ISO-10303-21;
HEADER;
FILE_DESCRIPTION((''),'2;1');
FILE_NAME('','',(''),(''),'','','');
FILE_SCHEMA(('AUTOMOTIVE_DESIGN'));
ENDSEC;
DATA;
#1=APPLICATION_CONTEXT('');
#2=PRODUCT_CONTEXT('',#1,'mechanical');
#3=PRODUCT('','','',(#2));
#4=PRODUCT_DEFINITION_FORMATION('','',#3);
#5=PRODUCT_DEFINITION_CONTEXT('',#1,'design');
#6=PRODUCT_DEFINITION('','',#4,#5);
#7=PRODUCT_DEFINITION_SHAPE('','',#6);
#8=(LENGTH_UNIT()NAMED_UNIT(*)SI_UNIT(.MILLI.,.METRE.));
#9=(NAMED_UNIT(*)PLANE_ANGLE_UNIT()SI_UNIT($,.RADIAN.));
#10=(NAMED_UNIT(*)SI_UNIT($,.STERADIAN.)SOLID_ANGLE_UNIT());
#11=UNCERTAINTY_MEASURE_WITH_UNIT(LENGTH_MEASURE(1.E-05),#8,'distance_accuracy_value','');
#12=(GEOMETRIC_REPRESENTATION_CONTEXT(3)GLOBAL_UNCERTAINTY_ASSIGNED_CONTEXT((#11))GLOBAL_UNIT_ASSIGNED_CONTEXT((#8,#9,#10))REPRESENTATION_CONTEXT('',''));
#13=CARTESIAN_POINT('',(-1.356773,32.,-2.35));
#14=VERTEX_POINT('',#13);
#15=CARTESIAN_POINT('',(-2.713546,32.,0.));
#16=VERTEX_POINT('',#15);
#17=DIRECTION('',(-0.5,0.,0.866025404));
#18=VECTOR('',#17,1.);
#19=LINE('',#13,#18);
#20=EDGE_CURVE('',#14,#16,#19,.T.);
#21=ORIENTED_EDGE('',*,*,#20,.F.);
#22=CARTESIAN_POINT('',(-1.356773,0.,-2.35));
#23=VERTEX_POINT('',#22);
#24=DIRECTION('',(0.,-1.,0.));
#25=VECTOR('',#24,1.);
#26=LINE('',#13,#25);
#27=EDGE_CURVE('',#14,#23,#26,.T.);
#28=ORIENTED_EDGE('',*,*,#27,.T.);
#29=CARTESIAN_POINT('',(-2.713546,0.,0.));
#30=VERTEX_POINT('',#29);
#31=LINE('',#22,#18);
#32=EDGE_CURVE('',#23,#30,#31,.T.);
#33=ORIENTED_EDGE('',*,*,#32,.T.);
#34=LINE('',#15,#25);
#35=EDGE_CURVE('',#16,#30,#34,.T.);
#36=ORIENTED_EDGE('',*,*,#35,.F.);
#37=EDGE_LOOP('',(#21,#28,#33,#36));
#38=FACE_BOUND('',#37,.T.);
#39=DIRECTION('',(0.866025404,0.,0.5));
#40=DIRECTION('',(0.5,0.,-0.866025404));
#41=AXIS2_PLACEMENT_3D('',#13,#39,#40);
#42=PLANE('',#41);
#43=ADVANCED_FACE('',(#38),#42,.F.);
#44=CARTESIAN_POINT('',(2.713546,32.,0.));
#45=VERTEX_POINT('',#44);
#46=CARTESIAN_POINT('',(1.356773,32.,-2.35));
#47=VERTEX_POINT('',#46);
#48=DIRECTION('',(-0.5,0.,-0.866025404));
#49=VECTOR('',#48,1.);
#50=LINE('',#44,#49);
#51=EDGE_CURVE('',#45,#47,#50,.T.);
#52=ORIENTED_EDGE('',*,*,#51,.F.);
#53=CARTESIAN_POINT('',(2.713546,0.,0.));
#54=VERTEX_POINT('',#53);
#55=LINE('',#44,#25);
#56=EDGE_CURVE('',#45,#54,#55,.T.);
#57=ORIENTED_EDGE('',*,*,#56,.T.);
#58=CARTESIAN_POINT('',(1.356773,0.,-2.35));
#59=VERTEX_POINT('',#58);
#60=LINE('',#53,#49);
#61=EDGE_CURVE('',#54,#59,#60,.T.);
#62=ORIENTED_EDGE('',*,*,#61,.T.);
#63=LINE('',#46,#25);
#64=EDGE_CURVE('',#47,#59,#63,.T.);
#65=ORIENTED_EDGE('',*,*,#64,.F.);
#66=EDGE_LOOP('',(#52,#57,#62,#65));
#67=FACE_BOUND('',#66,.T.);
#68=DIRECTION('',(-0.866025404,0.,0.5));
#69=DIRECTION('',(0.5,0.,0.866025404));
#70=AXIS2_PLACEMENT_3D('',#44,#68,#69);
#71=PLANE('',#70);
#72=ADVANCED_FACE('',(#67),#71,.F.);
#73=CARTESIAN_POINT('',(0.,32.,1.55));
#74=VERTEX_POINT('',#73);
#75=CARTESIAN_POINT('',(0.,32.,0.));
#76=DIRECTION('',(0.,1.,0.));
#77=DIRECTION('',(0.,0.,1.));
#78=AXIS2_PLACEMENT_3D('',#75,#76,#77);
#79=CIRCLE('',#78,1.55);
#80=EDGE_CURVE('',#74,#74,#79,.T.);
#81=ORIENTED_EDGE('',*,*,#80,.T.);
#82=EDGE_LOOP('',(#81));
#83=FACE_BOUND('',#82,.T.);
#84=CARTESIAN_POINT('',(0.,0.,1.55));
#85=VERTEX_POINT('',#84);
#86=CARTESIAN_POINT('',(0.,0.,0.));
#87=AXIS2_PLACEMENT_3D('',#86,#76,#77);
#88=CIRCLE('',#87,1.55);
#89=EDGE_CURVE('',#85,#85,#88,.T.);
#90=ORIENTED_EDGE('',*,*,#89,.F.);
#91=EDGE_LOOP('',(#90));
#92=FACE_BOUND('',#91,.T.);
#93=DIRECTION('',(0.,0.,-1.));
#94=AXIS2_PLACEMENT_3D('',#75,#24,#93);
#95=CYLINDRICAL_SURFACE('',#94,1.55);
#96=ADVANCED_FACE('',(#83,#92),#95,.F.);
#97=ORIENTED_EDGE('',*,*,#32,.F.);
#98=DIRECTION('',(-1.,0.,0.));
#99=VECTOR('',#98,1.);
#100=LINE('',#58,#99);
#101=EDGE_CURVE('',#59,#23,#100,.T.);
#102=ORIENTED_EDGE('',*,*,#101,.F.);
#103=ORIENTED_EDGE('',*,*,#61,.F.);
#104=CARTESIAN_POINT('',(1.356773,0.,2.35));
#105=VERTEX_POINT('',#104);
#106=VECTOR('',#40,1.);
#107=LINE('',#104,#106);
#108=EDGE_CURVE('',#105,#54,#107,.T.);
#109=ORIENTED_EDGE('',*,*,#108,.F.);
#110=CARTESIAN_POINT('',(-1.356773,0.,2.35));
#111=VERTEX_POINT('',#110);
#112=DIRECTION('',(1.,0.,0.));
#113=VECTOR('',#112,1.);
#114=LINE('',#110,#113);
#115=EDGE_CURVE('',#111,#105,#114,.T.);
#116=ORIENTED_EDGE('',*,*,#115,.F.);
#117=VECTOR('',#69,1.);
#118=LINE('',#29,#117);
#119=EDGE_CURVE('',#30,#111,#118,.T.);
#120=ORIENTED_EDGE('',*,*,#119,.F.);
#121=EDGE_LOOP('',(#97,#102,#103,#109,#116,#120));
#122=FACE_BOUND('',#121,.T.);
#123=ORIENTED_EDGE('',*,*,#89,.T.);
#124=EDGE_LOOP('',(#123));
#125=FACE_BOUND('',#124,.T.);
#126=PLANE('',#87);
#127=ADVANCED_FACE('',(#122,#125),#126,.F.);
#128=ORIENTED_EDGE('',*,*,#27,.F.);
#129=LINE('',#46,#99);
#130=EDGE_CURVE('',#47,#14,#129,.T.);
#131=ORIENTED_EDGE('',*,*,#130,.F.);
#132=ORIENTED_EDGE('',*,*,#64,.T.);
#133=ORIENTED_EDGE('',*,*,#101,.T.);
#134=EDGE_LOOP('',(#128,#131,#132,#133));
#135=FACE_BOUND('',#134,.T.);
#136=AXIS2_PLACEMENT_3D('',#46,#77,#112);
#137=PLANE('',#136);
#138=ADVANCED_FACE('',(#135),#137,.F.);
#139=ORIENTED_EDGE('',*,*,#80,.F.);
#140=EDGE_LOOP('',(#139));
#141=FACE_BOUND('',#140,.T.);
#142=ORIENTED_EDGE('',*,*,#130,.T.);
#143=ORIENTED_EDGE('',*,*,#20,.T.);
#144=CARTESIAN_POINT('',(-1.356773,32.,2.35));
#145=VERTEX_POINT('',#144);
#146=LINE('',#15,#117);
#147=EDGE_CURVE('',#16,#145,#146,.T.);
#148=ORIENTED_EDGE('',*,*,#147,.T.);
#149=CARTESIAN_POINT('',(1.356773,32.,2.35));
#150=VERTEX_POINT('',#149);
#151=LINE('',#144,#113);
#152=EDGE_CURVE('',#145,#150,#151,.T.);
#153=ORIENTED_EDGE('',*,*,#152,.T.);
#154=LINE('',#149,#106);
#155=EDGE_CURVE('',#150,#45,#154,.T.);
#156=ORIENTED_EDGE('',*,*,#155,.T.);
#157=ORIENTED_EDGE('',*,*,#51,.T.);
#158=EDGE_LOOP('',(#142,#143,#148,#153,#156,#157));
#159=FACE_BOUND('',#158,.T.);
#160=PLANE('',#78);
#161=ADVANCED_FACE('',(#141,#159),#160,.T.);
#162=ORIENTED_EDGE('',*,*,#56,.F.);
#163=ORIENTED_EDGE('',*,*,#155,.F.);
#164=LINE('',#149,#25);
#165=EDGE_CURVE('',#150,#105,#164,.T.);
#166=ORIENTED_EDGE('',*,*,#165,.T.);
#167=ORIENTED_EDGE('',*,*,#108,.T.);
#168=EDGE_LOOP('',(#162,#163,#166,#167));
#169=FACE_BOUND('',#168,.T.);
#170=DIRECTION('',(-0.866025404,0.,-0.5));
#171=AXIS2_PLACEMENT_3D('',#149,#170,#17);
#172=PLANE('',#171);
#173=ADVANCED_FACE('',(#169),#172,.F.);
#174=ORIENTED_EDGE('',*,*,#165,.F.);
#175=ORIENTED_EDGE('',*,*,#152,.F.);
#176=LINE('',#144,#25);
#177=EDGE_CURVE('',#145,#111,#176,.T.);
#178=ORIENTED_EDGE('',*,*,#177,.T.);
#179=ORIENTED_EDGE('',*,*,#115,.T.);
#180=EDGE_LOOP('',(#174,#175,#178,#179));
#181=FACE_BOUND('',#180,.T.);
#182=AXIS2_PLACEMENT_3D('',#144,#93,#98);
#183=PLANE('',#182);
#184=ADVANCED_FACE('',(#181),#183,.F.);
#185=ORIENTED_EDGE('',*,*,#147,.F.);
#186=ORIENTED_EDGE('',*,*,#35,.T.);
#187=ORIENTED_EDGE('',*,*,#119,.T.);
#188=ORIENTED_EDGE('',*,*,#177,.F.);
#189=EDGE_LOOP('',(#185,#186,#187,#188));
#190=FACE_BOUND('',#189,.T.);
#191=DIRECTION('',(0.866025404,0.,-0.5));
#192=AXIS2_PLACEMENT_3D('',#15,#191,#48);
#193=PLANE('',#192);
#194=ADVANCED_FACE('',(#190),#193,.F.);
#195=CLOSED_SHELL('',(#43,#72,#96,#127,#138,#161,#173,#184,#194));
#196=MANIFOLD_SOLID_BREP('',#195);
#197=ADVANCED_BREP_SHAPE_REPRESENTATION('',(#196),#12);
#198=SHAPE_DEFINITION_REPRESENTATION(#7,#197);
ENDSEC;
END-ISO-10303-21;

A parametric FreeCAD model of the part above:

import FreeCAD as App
import Part
import Sketcher

V = App.Vector
Q = App.Units.Quantity


def add_polygon(sketch, points):
    """Adds a closed chain of lines whose ends are joined by coincident constraints."""
    first, n = sketch.GeometryCount, len(points)
    for a, b in zip(points, points[1:] + points[:1]):
        sketch.addGeometry(Part.LineSegment(App.Vector(*a, 0), App.Vector(*b, 0)), False)
    for i in range(n):
        sketch.addConstraint(Sketcher.Constraint("Coincident", first + i, 2, first + (i + 1) % n, 1))

doc = App.newDocument("Part")
body = doc.addObject("PartDesign::Body", "Body")

# Sketch on XZ plane
sketch1 = doc.addObject("Sketcher::SketchObject", "Sketch")
body.addObject(sketch1)
sketch1.AttachmentSupport = (doc.XZ_Plane, [""])
sketch1.MapMode = "FlatFace"
add_polygon(sketch1, [(2.7, 0), (1.4, -2.4), (-1.4, -2.4), (-2.7, 0), (-1.4, 2.4), (1.4, 2.4)])  # lines 0-5
sketch1.addGeometry(Part.Circle(V(0, 0, 0), V(0, 0, 1), 1.6), False)  # 6
sketch1.addConstraint(Sketcher.Constraint("Horizontal", 1))
sketch1.addConstraint(Sketcher.Constraint("Horizontal", 4))
sketch1.addConstraint(Sketcher.Constraint("Coincident", 6, 3, -1, 1))
sketch1.addConstraint(Sketcher.Constraint("Symmetric", 0, 2, 3, 2, -1, 1))
sketch1.addConstraint(Sketcher.Constraint("Symmetric", 2, 2, 5, 2, -1, 1))
sketch1.addConstraint(Sketcher.Constraint("PointOnObject", 2, 2, -1))
sketch1.addConstraint(Sketcher.Constraint("Parallel", 2, 5))
sketch1.addConstraint(Sketcher.Constraint("Vertical", 1, 2, 3, 2))
sketch1.addConstraint(Sketcher.Constraint("Diameter", 6, 3.1))
sketch1.addConstraint(Sketcher.Constraint("Angle", 0, Q("-120 deg")))
sketch1.addConstraint(Sketcher.Constraint("DistanceY", 1, 2, 3, 2, 4.7))
sketch1.addConstraint(Sketcher.Constraint("DistanceX", 1, 2, 1, 1, 2.713546))
pad1 = doc.addObject("PartDesign::Pad", "Pad")
body.addObject(pad1)
pad1.Profile = sketch1
pad1.Length = 32
pad1.Reversed = True

doc.recompute()
